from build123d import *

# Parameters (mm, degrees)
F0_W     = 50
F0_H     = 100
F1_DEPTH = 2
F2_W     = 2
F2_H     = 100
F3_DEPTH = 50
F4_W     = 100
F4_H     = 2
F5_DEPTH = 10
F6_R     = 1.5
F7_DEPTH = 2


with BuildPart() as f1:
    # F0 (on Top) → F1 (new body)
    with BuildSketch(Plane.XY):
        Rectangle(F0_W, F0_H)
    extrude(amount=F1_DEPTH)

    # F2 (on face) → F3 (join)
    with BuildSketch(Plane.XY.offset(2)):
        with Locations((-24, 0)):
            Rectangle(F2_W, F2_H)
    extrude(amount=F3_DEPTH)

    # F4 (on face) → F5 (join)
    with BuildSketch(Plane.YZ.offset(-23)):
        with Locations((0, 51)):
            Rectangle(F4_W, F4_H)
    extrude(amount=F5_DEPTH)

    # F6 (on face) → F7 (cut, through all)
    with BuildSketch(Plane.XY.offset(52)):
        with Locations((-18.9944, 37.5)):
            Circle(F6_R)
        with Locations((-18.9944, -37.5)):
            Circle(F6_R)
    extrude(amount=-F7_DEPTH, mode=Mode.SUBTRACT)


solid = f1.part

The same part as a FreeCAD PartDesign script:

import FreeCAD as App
import Part
import Sketcher

doc = App.newDocument("Part")
body = doc.addObject("PartDesign::Body", "Body")

# Sketch on XY plane
sketch1 = body.newObject("Sketcher::SketchObject", "Sketch")
sketch1.AttachmentSupport = (doc.getObject("XY_Plane"), [""])
sketch1.MapMode = "FlatFace"
sketch1.addGeometry([
    Part.LineSegment(App.Vector(-25, 50, 0), App.Vector(-25, -50, 0)),
    Part.LineSegment(App.Vector(-25, -50, 0), App.Vector(25, -50, 0)),
    Part.LineSegment(App.Vector(25, -50, 0), App.Vector(25, 50, 0)),
    Part.LineSegment(App.Vector(25, 50, 0), App.Vector(-25, 50, 0)),
], False)
sketch1.addConstraint([
    Sketcher.Constraint("Coincident", 0, 2, 1, 1),
    Sketcher.Constraint("Coincident", 1, 2, 2, 1),
    Sketcher.Constraint("Coincident", 2, 2, 3, 1),
    Sketcher.Constraint("Coincident", 3, 2, 0, 1),
    Sketcher.Constraint("Vertical", 0),
    Sketcher.Constraint("Horizontal", 1),
    Sketcher.Constraint("Vertical", 2),
    Sketcher.Constraint("Horizontal", 3),
    Sketcher.Constraint("Symmetric", 0, 2, 2, 2, -1, 1),
    Sketcher.Constraint("DistanceX", 1, 1, 1, 2, 50.0),
    Sketcher.Constraint("DistanceY", 0, 2, 0, 1, 100.0),
])
pad1 = body.newObject("PartDesign::Pad", "Pad")
pad1.Profile = sketch1
pad1.Length = 2

# Sketch on XY plane
sketch2 = body.newObject("Sketcher::SketchObject", "Sketch001")
sketch2.AttachmentSupport = (doc.getObject("XY_Plane"), [""])
sketch2.MapMode = "FlatFace"
sketch2.AttachmentOffset = App.Placement(App.Vector(0, 0, 2), App.Rotation())
sketch2.addGeometry([
    Part.LineSegment(App.Vector(-25, 50, 0), App.Vector(-25, -50, 0)),
    Part.LineSegment(App.Vector(-25, -50, 0), App.Vector(-23, -50, 0)),
    Part.LineSegment(App.Vector(-23, -50, 0), App.Vector(-23, 50, 0)),
    Part.LineSegment(App.Vector(-23, 50, 0), App.Vector(-25, 50, 0)),
], False)
sketch2.addConstraint([
    Sketcher.Constraint("Coincident", 0, 2, 1, 1),
    Sketcher.Constraint("Coincident", 1, 2, 2, 1),
    Sketcher.Constraint("Coincident", 2, 2, 3, 1),
    Sketcher.Constraint("Coincident", 3, 2, 0, 1),
    Sketcher.Constraint("Vertical", 0),
    Sketcher.Constraint("Horizontal", 1),
    Sketcher.Constraint("Vertical", 2),
    Sketcher.Constraint("Horizontal", 3),
    Sketcher.Constraint("DistanceX", 1, 1, 1, 2, 2.0),
    Sketcher.Constraint("DistanceY", 0, 2, 0, 1, 100.0),
    Sketcher.Constraint("DistanceX", 0, 2, -1, 1, 25.0),
    Sketcher.Constraint("DistanceY", 0, 2, -1, 1, 50.0),
])
pad2 = body.newObject("PartDesign::Pad", "Pad001")
pad2.Profile = sketch2
pad2.Length = 50

# Sketch on YZ plane
sketch3 = body.newObject("Sketcher::SketchObject", "Sketch002")
sketch3.AttachmentSupport = (doc.getObject("YZ_Plane"), [""])
sketch3.MapMode = "FlatFace"
sketch3.AttachmentOffset = App.Placement(App.Vector(0, 0, -23), App.Rotation())
sketch3.addGeometry([
    Part.LineSegment(App.Vector(-50, 52, 0), App.Vector(-50, 50, 0)),
    Part.LineSegment(App.Vector(-50, 50, 0), App.Vector(50, 50, 0)),
    Part.LineSegment(App.Vector(50, 50, 0), App.Vector(50, 52, 0)),
    Part.LineSegment(App.Vector(50, 52, 0), App.Vector(-50, 52, 0)),
], False)
sketch3.addConstraint([
    Sketcher.Constraint("Coincident", 0, 2, 1, 1),
    Sketcher.Constraint("Coincident", 1, 2, 2, 1),
    Sketcher.Constraint("Coincident", 2, 2, 3, 1),
    Sketcher.Constraint("Coincident", 3, 2, 0, 1),
    Sketcher.Constraint("Vertical", 0),
    Sketcher.Constraint("Horizontal", 1),
    Sketcher.Constraint("Vertical", 2),
    Sketcher.Constraint("Horizontal", 3),
    Sketcher.Constraint("DistanceX", 1, 1, 1, 2, 100.0),
    Sketcher.Constraint("DistanceY", 0, 2, 0, 1, 2.0),
    Sketcher.Constraint("DistanceX", 0, 2, -1, 1, 50.0),
    Sketcher.Constraint("DistanceY", -1, 1, 0, 2, 50.0),
])
pad3 = body.newObject("PartDesign::Pad", "Pad002")
pad3.Profile = sketch3
pad3.Length = 10

# Sketch on XY plane
sketch4 = body.newObject("Sketcher::SketchObject", "Sketch003")
sketch4.AttachmentSupport = (doc.getObject("XY_Plane"), [""])
sketch4.MapMode = "FlatFace"
sketch4.AttachmentOffset = App.Placement(App.Vector(0, 0, 52), App.Rotation())
sketch4.addGeometry([
    Part.Circle(App.Vector(-19, 37.5, 0), App.Vector(0, 0, 1), 1.5),
    Part.Circle(App.Vector(-19, -37.5, 0), App.Vector(0, 0, 1), 1.5),
], False)
sketch4.addConstraint([
    Sketcher.Constraint("Equal", 0, 1),
    Sketcher.Constraint("Symmetric", 0, 3, 1, 3, -1),
    Sketcher.Constraint("Diameter", 0, 3.0),
    Sketcher.Constraint("DistanceY", 1, 3, 0, 3, 75.0),
    Sketcher.Constraint("DistanceX", 0, 3, -1, 1, 18.9944),
])
pocket1 = body.newObject("PartDesign::Pocket", "Pocket")
pocket1.Profile = sketch4
pocket1.Length = 2

doc.recompute()
